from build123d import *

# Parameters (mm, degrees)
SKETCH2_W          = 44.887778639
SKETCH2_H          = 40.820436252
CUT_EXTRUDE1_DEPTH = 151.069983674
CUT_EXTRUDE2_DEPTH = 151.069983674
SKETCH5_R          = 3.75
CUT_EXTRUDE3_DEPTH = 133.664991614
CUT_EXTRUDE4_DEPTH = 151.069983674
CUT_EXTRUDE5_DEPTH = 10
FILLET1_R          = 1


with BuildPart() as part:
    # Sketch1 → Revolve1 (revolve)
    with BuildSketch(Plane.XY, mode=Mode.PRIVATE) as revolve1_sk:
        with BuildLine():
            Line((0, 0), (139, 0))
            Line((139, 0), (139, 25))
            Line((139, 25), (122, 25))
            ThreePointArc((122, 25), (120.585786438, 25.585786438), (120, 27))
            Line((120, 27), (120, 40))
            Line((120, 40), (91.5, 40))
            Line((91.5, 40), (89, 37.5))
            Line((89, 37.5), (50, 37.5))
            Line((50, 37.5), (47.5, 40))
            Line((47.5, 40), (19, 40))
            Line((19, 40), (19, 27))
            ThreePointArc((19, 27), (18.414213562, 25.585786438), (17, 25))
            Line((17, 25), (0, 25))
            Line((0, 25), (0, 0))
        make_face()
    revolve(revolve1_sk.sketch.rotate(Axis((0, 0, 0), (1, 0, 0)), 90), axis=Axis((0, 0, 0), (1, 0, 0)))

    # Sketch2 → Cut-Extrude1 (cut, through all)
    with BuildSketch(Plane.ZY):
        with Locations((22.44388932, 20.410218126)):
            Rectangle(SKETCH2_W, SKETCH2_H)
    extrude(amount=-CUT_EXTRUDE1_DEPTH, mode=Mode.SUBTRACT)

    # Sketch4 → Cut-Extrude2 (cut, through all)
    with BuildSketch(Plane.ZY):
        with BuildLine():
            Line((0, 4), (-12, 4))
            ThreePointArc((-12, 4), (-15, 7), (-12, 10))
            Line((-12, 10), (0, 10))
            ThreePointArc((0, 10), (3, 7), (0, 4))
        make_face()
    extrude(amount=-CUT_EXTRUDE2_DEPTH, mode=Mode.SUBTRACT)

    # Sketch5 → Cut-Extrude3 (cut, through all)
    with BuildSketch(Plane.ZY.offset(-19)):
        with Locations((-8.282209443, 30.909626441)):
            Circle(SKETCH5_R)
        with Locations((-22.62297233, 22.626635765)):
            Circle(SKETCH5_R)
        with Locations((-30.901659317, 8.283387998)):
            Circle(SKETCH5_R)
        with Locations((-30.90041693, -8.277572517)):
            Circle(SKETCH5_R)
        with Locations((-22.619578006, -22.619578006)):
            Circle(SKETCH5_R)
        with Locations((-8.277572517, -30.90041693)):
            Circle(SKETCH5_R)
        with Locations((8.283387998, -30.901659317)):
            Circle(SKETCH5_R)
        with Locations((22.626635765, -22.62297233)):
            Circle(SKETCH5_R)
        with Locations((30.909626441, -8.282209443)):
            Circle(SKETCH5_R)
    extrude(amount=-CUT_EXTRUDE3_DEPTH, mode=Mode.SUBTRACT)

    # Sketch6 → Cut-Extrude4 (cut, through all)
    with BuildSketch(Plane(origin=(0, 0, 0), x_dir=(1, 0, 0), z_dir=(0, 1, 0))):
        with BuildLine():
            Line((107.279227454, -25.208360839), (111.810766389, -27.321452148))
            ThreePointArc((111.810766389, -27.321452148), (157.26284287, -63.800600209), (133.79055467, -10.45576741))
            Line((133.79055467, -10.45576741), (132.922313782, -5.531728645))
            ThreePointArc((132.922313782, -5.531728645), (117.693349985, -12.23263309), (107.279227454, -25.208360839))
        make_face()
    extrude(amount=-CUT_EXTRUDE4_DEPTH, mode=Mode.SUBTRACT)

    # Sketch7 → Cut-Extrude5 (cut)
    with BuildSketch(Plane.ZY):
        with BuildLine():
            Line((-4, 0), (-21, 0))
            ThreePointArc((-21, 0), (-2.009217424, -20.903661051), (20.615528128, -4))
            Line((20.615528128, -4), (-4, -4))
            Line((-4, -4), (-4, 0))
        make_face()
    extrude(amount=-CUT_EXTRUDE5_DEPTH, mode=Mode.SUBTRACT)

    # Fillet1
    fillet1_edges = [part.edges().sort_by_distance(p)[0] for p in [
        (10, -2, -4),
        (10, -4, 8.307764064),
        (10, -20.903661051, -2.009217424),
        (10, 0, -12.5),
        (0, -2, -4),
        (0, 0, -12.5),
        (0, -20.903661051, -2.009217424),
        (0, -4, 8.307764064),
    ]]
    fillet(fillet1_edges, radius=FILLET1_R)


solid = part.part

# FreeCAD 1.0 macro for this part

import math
import FreeCAD as App
import Part
import Sketcher
Q = App.Units.Quantity


def edges_at(feature, points):
    """Names of the edges that pass closest to the given points."""
    edges = feature.Shape.Edges
    near = lambda p: min(range(len(edges)), key=lambda i: edges[i].distToShape(Part.Vertex(*p))[0])
    return sorted({f"Edge{near(p) + 1}" for p in points})


def add_polygon(sketch, points):
    """Adds a closed chain of lines whose ends are joined by coincident constraints."""
    first, n = sketch.GeometryCount, len(points)
    for a, b in zip(points, points[1:] + points[:1]):
        sketch.addGeometry(Part.LineSegment(App.Vector(*a, 0), App.Vector(*b, 0)), False)
    for i in range(n):
        sketch.addConstraint(Sketcher.Constraint("Coincident", first + i, 2, first + (i + 1) % n, 1))

doc = App.newDocument("Part")
body = doc.addObject("PartDesign::Body", "Body")

# Sketch on XY plane
sketch1 = body.newObject("Sketcher::SketchObject", "Sketch")
sketch1.AttachmentSupport = (doc.getObject("XY_Plane"), [""])
sketch1.MapMode = "FlatFace"
sketch1.addGeometry([
    Part.LineSegment(App.Vector(0, 0, 0), App.Vector(139, 0, 0)),  # 0
    Part.LineSegment(App.Vector(139, 0, 0), App.Vector(139, 25, 0)),  # 1
    Part.LineSegment(App.Vector(139, 25, 0), App.Vector(122, 25, 0)),  # 2
    Part.ArcOfCircle(Part.Circle(App.Vector(122, 27, 0), App.Vector(0, 0, 1), 2), math.radians(-180), math.radians(-90)),  # 3
    Part.LineSegment(App.Vector(120, 27, 0), App.Vector(120, 40, 0)),  # 4
    Part.LineSegment(App.Vector(120, 40, 0), App.Vector(91.5, 40, 0)),  # 5
    Part.LineSegment(App.Vector(91.5, 40, 0), App.Vector(89, 37.5, 0)),  # 6
    Part.LineSegment(App.Vector(89, 37.5, 0), App.Vector(50, 37.5, 0)),  # 7
    Part.LineSegment(App.Vector(50, 37.5, 0), App.Vector(47.5, 40, 0)),  # 8
    Part.LineSegment(App.Vector(47.5, 40, 0), App.Vector(19, 40, 0)),  # 9
    Part.LineSegment(App.Vector(19, 40, 0), App.Vector(19, 27, 0)),  # 10
    Part.ArcOfCircle(Part.Circle(App.Vector(17, 27, 0), App.Vector(0, 0, 1), 2), math.radians(-90), math.radians(0)),  # 11
    Part.LineSegment(App.Vector(17, 25, 0), App.Vector(0, 25, 0)),  # 12
    Part.LineSegment(App.Vector(0, 25, 0), App.Vector(0, 0, 0)),  # 13
], False)
sketch1.addConstraint([
    Sketcher.Constraint("Coincident", 0, 2, 1, 1),
    Sketcher.Constraint("Coincident", 1, 2, 2, 1),
    Sketcher.Constraint("Tangent", 2, 2, 3, 2),
    Sketcher.Constraint("Tangent", 3, 1, 4, 1),
    Sketcher.Constraint("Coincident", 4, 2, 5, 1),
    Sketcher.Constraint("Coincident", 5, 2, 6, 1),
    Sketcher.Constraint("Coincident", 6, 2, 7, 1),
    Sketcher.Constraint("Coincident", 7, 2, 8, 1),
    Sketcher.Constraint("Coincident", 8, 2, 9, 1),
    Sketcher.Constraint("Coincident", 9, 2, 10, 1),
    Sketcher.Constraint("Tangent", 10, 2, 11, 2),
    Sketcher.Constraint("Tangent", 11, 1, 12, 1),
    Sketcher.Constraint("Coincident", 12, 2, 13, 1),
    Sketcher.Constraint("Coincident", 13, 2, 0, 1),
    Sketcher.Constraint("Horizontal", 0),
    Sketcher.Constraint("Vertical", 1),
    Sketcher.Constraint("Horizontal", 2),
    Sketcher.Constraint("Vertical", 4),
    Sketcher.Constraint("Horizontal", 5),
    Sketcher.Constraint("Horizontal", 7),
    Sketcher.Constraint("Horizontal", 9),
    Sketcher.Constraint("Vertical", 10),
    Sketcher.Constraint("Horizontal", 12),
    Sketcher.Constraint("Vertical", 13),
    Sketcher.Constraint("Coincident", 13, 2, -1, 1),
    Sketcher.Constraint("Equal", 3, 11),
    Sketcher.Constraint("Perpendicular", 6, 8),
    Sketcher.Constraint("Horizontal", 3, 3, 11, 3),
    Sketcher.Constraint("Horizontal", 5, 2, 8, 2),
    Sketcher.Constraint("Equal", 5, 9),
    Sketcher.Constraint("Equal", 2, 12),
    Sketcher.Constraint("Equal", 6, 8),
    Sketcher.Constraint("Radius", 3, 2.0),
    Sketcher.Constraint("DistanceX", 0, 1, 0, 2, 139.0),
    Sketcher.Constraint("DistanceX", 2, 2, 2, 1, 17.0),
    Sketcher.Constraint("DistanceX", 7, 2, 7, 1, 39.0),
    Sketcher.Constraint("DistanceY", 1, 1, 1, 2, 25.0),
    Sketcher.Constraint("DistanceY", 4, 1, 4, 2, 13.0),
    Sketcher.Constraint("DistanceX", 5, 2, 5, 1, 28.5),
])
revolution = body.newObject("PartDesign::Revolution", "Revolution")
revolution.Profile = sketch1
revolution.ReferenceAxis = (sketch1, ["H_Axis"])
revolution.Angle = 360

# Sketch on YZ plane
sketch2 = body.newObject("Sketcher::SketchObject", "Sketch001")
sketch2.AttachmentSupport = (doc.getObject("YZ_Plane"), [""])
sketch2.MapMode = "FlatFace"
add_polygon(sketch2, [(41, 0), (0, 0), (0, 45), (41, 45)])  # lines 0-3
sketch2.addConstraint([
    Sketcher.Constraint("Horizontal", 0),
    Sketcher.Constraint("Vertical", 1),
    Sketcher.Constraint("Horizontal", 2),
    Sketcher.Constraint("Vertical", 3),
    Sketcher.Constraint("Coincident", 0, 2, -1, 1),
    Sketcher.Constraint("DistanceY", 1, 1, 1, 2, 44.887779),
    Sketcher.Constraint("DistanceX", 0, 2, 0, 1, 40.820436),
])
pocket1 = body.newObject("PartDesign::Pocket", "Pocket")
pocket1.Profile = sketch2
pocket1.Type = "ThroughAll"
pocket1.Reversed = True

# Sketch on YZ plane
sketch3 = body.newObject("Sketcher::SketchObject", "Sketch002")
sketch3.AttachmentSupport = (doc.getObject("YZ_Plane"), [""])
sketch3.MapMode = "FlatFace"
sketch3.addGeometry([
    Part.LineSegment(App.Vector(4, -12, 0), App.Vector(4, 0, 0)),
    Part.ArcOfCircle(Part.Circle(App.Vector(7, 0, 0), App.Vector(0, 0, 1), 3), math.radians(0), math.radians(180)),
    Part.LineSegment(App.Vector(10, 0, 0), App.Vector(10, -12, 0)),
    Part.ArcOfCircle(Part.Circle(App.Vector(7, -12, 0), App.Vector(0, 0, 1), 3), math.radians(180), math.radians(360)),
], False)
sketch3.addConstraint([
    Sketcher.Constraint("Tangent", 0, 2, 1, 2),
    Sketcher.Constraint("Tangent", 1, 1, 2, 1),
    Sketcher.Constraint("Tangent", 2, 2, 3, 2),
    Sketcher.Constraint("Tangent", 3, 1, 0, 1),
    Sketcher.Constraint("Vertical", 0),
    Sketcher.Constraint("Vertical", 2),
    Sketcher.Constraint("PointOnObject", 1, 3, -1),
    Sketcher.Constraint("Radius", 1, 3.0),
    Sketcher.Constraint("DistanceY", 0, 1, 0, 2, 12.0),
    Sketcher.Constraint("DistanceX", -1, 1, 1, 3, 7.0),
])
pocket2 = body.newObject("PartDesign::Pocket", "Pocket001")
pocket2.Profile = sketch3
pocket2.Type = "ThroughAll"
pocket2.Reversed = True

# Sketch on YZ plane
sketch4 = body.newObject("Sketcher::SketchObject", "Sketch003")
sketch4.AttachmentSupport = (doc.getObject("YZ_Plane"), [""])
sketch4.MapMode = "FlatFace"
sketch4.AttachmentOffset = App.Placement(App.Vector(0, 0, 19), App.Rotation())
sketch4.addGeometry([
    Part.Circle(App.Vector(30.9, -8.3, 0), App.Vector(0, 0, 1), 3.8),  # 0
    Part.Circle(App.Vector(22.6, -22.6, 0), App.Vector(0, 0, 1), 3.8),  # 1
    Part.Circle(App.Vector(8.3, -30.9, 0), App.Vector(0, 0, 1), 3.8),  # 2
    Part.Circle(App.Vector(-8.3, -30.9, 0), App.Vector(0, 0, 1), 3.8),  # 3
    Part.Circle(App.Vector(-22.6, -22.6, 0), App.Vector(0, 0, 1), 3.8),  # 4
    Part.Circle(App.Vector(-30.9, -8.3, 0), App.Vector(0, 0, 1), 3.8),  # 5
    Part.Circle(App.Vector(-30.9, 8.3, 0), App.Vector(0, 0, 1), 3.8),  # 6
    Part.Circle(App.Vector(-22.6, 22.6, 0), App.Vector(0, 0, 1), 3.8),  # 7
    Part.Circle(App.Vector(-8.3, 30.9, 0), App.Vector(0, 0, 1), 3.8),  # 8
], False)
sketch4.addConstraint([
    Sketcher.Constraint("Equal", 0, 1),
    Sketcher.Constraint("Equal", 1, 2),
    Sketcher.Constraint("Equal", 2, 3),
    Sketcher.Constraint("Equal", 3, 4),
    Sketcher.Constraint("Equal", 4, 5),
    Sketcher.Constraint("Equal", 5, 6),
    Sketcher.Constraint("Equal", 6, 7),
    Sketcher.Constraint("Equal", 7, 8),
    Sketcher.Constraint("Diameter", 0, 7.5),
    Sketcher.Constraint("DistanceX", 3, 3, 0, 3, 39.187199),
    Sketcher.Constraint("DistanceY", 1, 3, 5, 3, 14.3454),
    Sketcher.Constraint("DistanceX", 7, 3, 3, 3, 14.3454),
    Sketcher.Constraint("DistanceY", 5, 3, 8, 3, 39.187199),
    Sketcher.Constraint("DistanceY", 0, 3, -1, 1, 8.282209),
    Sketcher.Constraint("DistanceY", 2, 3, -1, 1, 30.901659),
    Sketcher.Constraint("DistanceX", 4, 3, -1, 1, 22.619578),
    Sketcher.Constraint("DistanceY", 4, 3, -1, 1, 22.619578),
    Sketcher.Constraint("DistanceX", 6, 3, -1, 1, 30.901659),
    Sketcher.Constraint("DistanceX", 8, 3, -1, 1, 8.282209),
    Sketcher.Constraint("DistanceX", 1, 3, 0, 3, 8.282991),
    Sketcher.Constraint("DistanceX", 2, 3, 0, 3, 22.626238),
    Sketcher.Constraint("DistanceY", 3, 3, 4, 3, 8.280839),
    Sketcher.Constraint("DistanceX", 5, 3, 4, 3, 8.280839),
    Sketcher.Constraint("DistanceY", 5, 3, 6, 3, 16.560961),
    Sketcher.Constraint("DistanceY", 5, 3, 7, 3, 30.904208),
    Sketcher.Constraint("DistanceX", -1, 1, 0, 3, 30.909626),
    Sketcher.Constraint("DistanceY", 1, 3, -1, 1, 22.622972),
])
pocket3 = body.newObject("PartDesign::Pocket", "Pocket002")
pocket3.Profile = sketch4
pocket3.Type = "ThroughAll"
pocket3.Reversed = True

# Sketch on XZ plane
sketch5 = body.newObject("Sketcher::SketchObject", "Sketch004")
sketch5.AttachmentSupport = (doc.getObject("XZ_Plane"), [""])
sketch5.MapMode = "FlatFace"
sketch5.addGeometry([
    Part.LineSegment(App.Vector(107.3, 25.2, 0), App.Vector(111.8, 27.3, 0)),
    Part.ArcOfCircle(Part.Circle(App.Vector(139, 40, 0), App.Vector(0, 0, 1), 30), math.radians(-100), math.radians(205)),
    Part.LineSegment(App.Vector(133.8, 10.5, 0), App.Vector(132.9, 5.5, 0)),
    Part.ArcOfCircle(Part.Circle(App.Vector(139, 40, 0), App.Vector(0, 0, 1), 35), math.radians(-155), math.radians(-100)),
], False)
sketch5.addConstraint([
    Sketcher.Constraint("Coincident", 0, 2, 1, 2),
    Sketcher.Constraint("Coincident", 1, 1, 2, 1),
    Sketcher.Constraint("Coincident", 2, 2, 3, 2),
    Sketcher.Constraint("Coincident", 3, 1, 0, 1),
    Sketcher.Constraint("Coincident", 3, 3, 1, 3),
    Sketcher.Constraint("Radius", 1, 30.0),
    Sketcher.Constraint("Radius", 3, 35.0),
    Sketcher.Constraint("Angle", 0, Q("25 deg")),
    Sketcher.Constraint("Angle", 2, Q("-100 deg")),
    Sketcher.Constraint("DistanceX", -1, 1, 1, 3, 139.0),
    Sketcher.Constraint("DistanceY", -1, 1, 1, 3, 40.0),
    Sketcher.Constraint("DistanceY", -1, 1, 2, 2, 5.531729),
    Sketcher.Constraint("DistanceY", -1, 1, 3, 1, 25.208361),
])
pocket4 = body.newObject("PartDesign::Pocket", "Pocket003")
pocket4.Profile = sketch5
pocket4.Type = "ThroughAll"
pocket4.Reversed = True

# Sketch on YZ plane
sketch6 = body.newObject("Sketcher::SketchObject", "Sketch005")
sketch6.AttachmentSupport = (doc.getObject("YZ_Plane"), [""])
sketch6.MapMode = "FlatFace"
sketch6.addGeometry([
    Part.LineSegment(App.Vector(0, -4, 0), App.Vector(0, -21, 0)),
    Part.ArcOfCircle(Part.Circle(App.Vector(0, 0, 0), App.Vector(0, 0, 1), 21), math.radians(101), math.radians(270)),
    Part.LineSegment(App.Vector(-4, 20.6, 0), App.Vector(-4, -4, 0)),
    Part.LineSegment(App.Vector(-4, -4, 0), App.Vector(0, -4, 0)),
], False)
sketch6.addConstraint([
    Sketcher.Constraint("Coincident", 0, 2, 1, 2),
    Sketcher.Constraint("Coincident", 1, 1, 2, 1),
    Sketcher.Constraint("Coincident", 2, 2, 3, 1),
    Sketcher.Constraint("Coincident", 3, 2, 0, 1),
    Sketcher.Constraint("Vertical", 0),
    Sketcher.Constraint("Vertical", 2),
    Sketcher.Constraint("Horizontal", 3),
    Sketcher.Constraint("Coincident", 1, 3, -1, 1),
    Sketcher.Constraint("PointOnObject", 0, 2, -2),
    Sketcher.Constraint("Radius", 1, 21.0),
    Sketcher.Constraint("DistanceX", 3, 1, 3, 2, 4.0),
    Sketcher.Constraint("DistanceY", 0, 2, 0, 1, 17.0),
])
pocket5 = body.newObject("PartDesign::Pocket", "Pocket004")
pocket5.Profile = sketch6
pocket5.Length = 10
pocket5.Reversed = True
doc.recompute()

fillet = body.newObject("PartDesign::Fillet", "Fillet")
fillet.Base = (pocket5, edges_at(pocket5, [
    (10, -2, -4),
    (10, -4, 8.308),
    (10, -20.904, -2.009),
    (10, 0, -12.5),
    (0, -2, -4),
    (0, 0, -12.5),
    (0, -20.904, -2.009),
    (0, -4, 8.308),
]))
fillet.Radius = 1

doc.recompute()
